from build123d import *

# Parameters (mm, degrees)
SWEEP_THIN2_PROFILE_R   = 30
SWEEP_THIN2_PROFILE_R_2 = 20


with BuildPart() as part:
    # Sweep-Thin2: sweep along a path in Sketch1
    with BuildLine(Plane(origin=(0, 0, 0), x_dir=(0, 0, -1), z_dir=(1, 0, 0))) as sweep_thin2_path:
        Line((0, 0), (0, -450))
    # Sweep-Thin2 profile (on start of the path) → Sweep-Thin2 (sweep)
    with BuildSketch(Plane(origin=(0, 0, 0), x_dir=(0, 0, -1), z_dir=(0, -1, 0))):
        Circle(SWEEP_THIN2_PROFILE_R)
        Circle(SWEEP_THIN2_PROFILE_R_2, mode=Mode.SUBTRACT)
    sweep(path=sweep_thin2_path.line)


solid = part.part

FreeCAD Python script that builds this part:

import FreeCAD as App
import Part
import Sketcher

doc = App.newDocument("Part")
body = doc.addObject("PartDesign::Body", "Body")

# Sketch on XZ plane
sketch1 = doc.addObject("Sketcher::SketchObject", "Sketch")
body.addObject(sketch1)
sketch1.AttachmentSupport = (doc.XZ_Plane, [""])
sketch1.MapMode = "FlatFace"
sketch1.addGeometry([
    Part.Circle(App.Vector(0, 0, 0), App.Vector(0, 0, 1), 30),
    Part.Circle(App.Vector(0, 0, 0), App.Vector(0, 0, 1), 20),
], False)
sketch1.addConstraint([
    Sketcher.Constraint("Coincident", 0, 3, -1, 1),
    Sketcher.Constraint("Coincident", 1, 3, -1, 1),
    Sketcher.Constraint("Diameter", 0, 60.0),
    Sketcher.Constraint("Diameter", 1, 40.0),
])

# Sketch on XY plane
sketch2 = doc.addObject("Sketcher::SketchObject", "Sketch001")
body.addObject(sketch2)
sketch2.AttachmentSupport = (doc.XY_Plane, [""])
sketch2.MapMode = "FlatFace"
sketch2.addGeometry(Part.LineSegment(App.Vector(0, 0, 0), App.Vector(0, -450, 0)), False)
sketch2.addConstraint([
    Sketcher.Constraint("Vertical", 0),
    Sketcher.Constraint("Coincident", 0, 1, -1, 1),
    Sketcher.Constraint("DistanceY", 0, 2, 0, 1, 450.0),
])
doc.recompute()

additivepipe = doc.addObject("PartDesign::AdditivePipe", "AdditivePipe")
body.addObject(additivepipe)
additivepipe.Profile = sketch1
additivepipe.Spine = (sketch2, ["Edge1"])

doc.recompute()
